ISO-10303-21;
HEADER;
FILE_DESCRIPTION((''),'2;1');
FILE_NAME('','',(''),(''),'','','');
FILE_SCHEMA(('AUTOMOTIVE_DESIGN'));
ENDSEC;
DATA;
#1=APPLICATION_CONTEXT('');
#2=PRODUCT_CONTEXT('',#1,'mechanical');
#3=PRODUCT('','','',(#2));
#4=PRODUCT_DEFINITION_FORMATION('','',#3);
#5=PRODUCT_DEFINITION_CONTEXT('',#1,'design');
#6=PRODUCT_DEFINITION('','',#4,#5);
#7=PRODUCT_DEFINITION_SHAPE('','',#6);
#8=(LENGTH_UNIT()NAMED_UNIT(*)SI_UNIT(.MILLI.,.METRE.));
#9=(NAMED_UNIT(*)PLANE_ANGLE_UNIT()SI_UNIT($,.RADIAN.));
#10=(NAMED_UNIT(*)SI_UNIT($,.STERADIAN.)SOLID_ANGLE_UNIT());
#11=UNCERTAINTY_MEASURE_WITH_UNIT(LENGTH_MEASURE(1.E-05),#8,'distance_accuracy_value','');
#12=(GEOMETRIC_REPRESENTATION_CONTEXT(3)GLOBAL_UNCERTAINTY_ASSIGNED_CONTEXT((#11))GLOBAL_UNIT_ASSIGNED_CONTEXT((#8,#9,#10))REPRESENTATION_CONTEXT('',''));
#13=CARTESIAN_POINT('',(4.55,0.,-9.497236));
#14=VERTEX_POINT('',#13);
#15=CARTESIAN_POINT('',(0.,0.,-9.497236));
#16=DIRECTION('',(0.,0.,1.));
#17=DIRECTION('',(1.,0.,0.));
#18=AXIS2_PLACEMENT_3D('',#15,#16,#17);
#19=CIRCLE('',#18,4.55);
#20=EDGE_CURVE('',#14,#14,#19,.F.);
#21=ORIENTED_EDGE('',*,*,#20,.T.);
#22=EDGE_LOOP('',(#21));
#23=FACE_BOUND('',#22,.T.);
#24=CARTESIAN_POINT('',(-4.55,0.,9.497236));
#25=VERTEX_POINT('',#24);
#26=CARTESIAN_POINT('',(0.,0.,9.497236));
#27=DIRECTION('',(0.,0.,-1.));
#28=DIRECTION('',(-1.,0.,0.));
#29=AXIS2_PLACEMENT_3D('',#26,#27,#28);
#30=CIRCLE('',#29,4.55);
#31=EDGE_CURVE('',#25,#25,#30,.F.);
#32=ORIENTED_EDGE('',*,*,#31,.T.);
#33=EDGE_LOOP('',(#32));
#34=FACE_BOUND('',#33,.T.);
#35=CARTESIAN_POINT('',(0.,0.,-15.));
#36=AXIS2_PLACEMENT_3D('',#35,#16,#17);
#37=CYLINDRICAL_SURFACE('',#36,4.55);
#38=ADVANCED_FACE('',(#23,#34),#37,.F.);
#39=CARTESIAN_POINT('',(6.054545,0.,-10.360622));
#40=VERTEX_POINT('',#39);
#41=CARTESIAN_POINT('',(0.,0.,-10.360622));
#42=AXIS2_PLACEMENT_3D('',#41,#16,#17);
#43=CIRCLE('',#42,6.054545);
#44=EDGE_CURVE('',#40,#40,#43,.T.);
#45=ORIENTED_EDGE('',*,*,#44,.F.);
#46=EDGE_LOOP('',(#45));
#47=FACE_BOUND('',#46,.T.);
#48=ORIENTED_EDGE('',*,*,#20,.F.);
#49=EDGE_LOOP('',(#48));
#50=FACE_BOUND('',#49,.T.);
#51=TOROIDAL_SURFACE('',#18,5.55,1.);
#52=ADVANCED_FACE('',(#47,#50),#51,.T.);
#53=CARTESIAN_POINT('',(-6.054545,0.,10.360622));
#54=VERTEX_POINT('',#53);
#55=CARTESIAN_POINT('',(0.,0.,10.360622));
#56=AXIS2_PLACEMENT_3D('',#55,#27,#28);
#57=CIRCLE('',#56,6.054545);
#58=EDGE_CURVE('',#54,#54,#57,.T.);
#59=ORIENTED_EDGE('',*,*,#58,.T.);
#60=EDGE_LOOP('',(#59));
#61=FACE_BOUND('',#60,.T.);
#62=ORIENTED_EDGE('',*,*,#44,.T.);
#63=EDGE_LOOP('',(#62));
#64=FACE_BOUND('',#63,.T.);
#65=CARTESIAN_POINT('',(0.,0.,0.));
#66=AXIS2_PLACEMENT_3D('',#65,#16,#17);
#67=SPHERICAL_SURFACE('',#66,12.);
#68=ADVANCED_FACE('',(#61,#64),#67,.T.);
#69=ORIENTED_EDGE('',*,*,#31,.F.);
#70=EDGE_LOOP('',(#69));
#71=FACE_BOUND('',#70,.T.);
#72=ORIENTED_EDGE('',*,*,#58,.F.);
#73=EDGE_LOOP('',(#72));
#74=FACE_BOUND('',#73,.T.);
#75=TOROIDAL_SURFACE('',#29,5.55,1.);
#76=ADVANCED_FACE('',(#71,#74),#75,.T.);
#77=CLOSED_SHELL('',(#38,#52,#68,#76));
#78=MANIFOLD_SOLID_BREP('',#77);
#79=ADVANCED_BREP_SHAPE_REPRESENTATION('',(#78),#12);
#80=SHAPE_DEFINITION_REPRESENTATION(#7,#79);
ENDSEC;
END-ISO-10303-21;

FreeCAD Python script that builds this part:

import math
import FreeCAD as App
import Part
import Sketcher


def edges_at(feature, points):
    """Names of the edges that pass closest to the given points."""
    edges = feature.Shape.Edges
    near = lambda p: min(range(len(edges)), key=lambda i: edges[i].distToShape(Part.Vertex(*p))[0])
    return sorted({f"Edge{near(p) + 1}" for p in points})

doc = App.newDocument("Part")
body = doc.addObject("PartDesign::Body", "Body")

# Sketch on XY plane
sketch1 = body.newObject("Sketcher::SketchObject", "Sketch")
sketch1.AttachmentSupport = (doc.getObject("XY_Plane"), [""])
sketch1.MapMode = "FlatFace"
sketch1.addGeometry(Part.LineSegment(App.Vector(0, -12, 0), App.Vector(0, 12, 0)), False)
sketch1.addGeometry(Part.ArcOfCircle(Part.Circle(App.Vector(0, 0, 0), App.Vector(0, 0, 1), 12), math.radians(90), math.radians(270)), False)
sketch1.addConstraint(Sketcher.Constraint("Coincident", 0, 1, 1, 2))
sketch1.addConstraint(Sketcher.Constraint("Coincident", 1, 1, 0, 2))
sketch1.addConstraint(Sketcher.Constraint("Vertical", 0))
sketch1.addConstraint(Sketcher.Constraint("Coincident", 1, 3, -1, 1))
sketch1.addConstraint(Sketcher.Constraint("PointOnObject", 0, 1, -2))
sketch1.addConstraint(Sketcher.Constraint("Radius", 1, 12.0))
revolution = body.newObject("PartDesign::Revolution", "Revolution")
revolution.Profile = sketch1
revolution.ReferenceAxis = (sketch1, ["V_Axis"])
revolution.Angle = 360

# Sketch on XY plane
sketch2 = body.newObject("Sketcher::SketchObject", "Sketch001")
sketch2.AttachmentSupport = (doc.getObject("XY_Plane"), [""])
sketch2.MapMode = "FlatFace"
sketch2.addGeometry(Part.Circle(App.Vector(0, 0, 0), App.Vector(0, 0, 1), 4.55), False)
sketch2.addConstraint(Sketcher.Constraint("Coincident", 0, 3, -1, 1))
sketch2.addConstraint(Sketcher.Constraint("Diameter", 0, 9.1))
pocket1 = body.newObject("PartDesign::Pocket", "Pocket")
pocket1.Profile = sketch2
pocket1.Length = 30
pocket1.Midplane = True
doc.recompute()

fillet = body.newObject("PartDesign::Fillet", "Fillet")
fillet.Base = (pocket1, edges_at(pocket1, [(4.55, 0, 11.104), (4.55, 0, -11.104)]))
fillet.Radius = 1

doc.recompute()
